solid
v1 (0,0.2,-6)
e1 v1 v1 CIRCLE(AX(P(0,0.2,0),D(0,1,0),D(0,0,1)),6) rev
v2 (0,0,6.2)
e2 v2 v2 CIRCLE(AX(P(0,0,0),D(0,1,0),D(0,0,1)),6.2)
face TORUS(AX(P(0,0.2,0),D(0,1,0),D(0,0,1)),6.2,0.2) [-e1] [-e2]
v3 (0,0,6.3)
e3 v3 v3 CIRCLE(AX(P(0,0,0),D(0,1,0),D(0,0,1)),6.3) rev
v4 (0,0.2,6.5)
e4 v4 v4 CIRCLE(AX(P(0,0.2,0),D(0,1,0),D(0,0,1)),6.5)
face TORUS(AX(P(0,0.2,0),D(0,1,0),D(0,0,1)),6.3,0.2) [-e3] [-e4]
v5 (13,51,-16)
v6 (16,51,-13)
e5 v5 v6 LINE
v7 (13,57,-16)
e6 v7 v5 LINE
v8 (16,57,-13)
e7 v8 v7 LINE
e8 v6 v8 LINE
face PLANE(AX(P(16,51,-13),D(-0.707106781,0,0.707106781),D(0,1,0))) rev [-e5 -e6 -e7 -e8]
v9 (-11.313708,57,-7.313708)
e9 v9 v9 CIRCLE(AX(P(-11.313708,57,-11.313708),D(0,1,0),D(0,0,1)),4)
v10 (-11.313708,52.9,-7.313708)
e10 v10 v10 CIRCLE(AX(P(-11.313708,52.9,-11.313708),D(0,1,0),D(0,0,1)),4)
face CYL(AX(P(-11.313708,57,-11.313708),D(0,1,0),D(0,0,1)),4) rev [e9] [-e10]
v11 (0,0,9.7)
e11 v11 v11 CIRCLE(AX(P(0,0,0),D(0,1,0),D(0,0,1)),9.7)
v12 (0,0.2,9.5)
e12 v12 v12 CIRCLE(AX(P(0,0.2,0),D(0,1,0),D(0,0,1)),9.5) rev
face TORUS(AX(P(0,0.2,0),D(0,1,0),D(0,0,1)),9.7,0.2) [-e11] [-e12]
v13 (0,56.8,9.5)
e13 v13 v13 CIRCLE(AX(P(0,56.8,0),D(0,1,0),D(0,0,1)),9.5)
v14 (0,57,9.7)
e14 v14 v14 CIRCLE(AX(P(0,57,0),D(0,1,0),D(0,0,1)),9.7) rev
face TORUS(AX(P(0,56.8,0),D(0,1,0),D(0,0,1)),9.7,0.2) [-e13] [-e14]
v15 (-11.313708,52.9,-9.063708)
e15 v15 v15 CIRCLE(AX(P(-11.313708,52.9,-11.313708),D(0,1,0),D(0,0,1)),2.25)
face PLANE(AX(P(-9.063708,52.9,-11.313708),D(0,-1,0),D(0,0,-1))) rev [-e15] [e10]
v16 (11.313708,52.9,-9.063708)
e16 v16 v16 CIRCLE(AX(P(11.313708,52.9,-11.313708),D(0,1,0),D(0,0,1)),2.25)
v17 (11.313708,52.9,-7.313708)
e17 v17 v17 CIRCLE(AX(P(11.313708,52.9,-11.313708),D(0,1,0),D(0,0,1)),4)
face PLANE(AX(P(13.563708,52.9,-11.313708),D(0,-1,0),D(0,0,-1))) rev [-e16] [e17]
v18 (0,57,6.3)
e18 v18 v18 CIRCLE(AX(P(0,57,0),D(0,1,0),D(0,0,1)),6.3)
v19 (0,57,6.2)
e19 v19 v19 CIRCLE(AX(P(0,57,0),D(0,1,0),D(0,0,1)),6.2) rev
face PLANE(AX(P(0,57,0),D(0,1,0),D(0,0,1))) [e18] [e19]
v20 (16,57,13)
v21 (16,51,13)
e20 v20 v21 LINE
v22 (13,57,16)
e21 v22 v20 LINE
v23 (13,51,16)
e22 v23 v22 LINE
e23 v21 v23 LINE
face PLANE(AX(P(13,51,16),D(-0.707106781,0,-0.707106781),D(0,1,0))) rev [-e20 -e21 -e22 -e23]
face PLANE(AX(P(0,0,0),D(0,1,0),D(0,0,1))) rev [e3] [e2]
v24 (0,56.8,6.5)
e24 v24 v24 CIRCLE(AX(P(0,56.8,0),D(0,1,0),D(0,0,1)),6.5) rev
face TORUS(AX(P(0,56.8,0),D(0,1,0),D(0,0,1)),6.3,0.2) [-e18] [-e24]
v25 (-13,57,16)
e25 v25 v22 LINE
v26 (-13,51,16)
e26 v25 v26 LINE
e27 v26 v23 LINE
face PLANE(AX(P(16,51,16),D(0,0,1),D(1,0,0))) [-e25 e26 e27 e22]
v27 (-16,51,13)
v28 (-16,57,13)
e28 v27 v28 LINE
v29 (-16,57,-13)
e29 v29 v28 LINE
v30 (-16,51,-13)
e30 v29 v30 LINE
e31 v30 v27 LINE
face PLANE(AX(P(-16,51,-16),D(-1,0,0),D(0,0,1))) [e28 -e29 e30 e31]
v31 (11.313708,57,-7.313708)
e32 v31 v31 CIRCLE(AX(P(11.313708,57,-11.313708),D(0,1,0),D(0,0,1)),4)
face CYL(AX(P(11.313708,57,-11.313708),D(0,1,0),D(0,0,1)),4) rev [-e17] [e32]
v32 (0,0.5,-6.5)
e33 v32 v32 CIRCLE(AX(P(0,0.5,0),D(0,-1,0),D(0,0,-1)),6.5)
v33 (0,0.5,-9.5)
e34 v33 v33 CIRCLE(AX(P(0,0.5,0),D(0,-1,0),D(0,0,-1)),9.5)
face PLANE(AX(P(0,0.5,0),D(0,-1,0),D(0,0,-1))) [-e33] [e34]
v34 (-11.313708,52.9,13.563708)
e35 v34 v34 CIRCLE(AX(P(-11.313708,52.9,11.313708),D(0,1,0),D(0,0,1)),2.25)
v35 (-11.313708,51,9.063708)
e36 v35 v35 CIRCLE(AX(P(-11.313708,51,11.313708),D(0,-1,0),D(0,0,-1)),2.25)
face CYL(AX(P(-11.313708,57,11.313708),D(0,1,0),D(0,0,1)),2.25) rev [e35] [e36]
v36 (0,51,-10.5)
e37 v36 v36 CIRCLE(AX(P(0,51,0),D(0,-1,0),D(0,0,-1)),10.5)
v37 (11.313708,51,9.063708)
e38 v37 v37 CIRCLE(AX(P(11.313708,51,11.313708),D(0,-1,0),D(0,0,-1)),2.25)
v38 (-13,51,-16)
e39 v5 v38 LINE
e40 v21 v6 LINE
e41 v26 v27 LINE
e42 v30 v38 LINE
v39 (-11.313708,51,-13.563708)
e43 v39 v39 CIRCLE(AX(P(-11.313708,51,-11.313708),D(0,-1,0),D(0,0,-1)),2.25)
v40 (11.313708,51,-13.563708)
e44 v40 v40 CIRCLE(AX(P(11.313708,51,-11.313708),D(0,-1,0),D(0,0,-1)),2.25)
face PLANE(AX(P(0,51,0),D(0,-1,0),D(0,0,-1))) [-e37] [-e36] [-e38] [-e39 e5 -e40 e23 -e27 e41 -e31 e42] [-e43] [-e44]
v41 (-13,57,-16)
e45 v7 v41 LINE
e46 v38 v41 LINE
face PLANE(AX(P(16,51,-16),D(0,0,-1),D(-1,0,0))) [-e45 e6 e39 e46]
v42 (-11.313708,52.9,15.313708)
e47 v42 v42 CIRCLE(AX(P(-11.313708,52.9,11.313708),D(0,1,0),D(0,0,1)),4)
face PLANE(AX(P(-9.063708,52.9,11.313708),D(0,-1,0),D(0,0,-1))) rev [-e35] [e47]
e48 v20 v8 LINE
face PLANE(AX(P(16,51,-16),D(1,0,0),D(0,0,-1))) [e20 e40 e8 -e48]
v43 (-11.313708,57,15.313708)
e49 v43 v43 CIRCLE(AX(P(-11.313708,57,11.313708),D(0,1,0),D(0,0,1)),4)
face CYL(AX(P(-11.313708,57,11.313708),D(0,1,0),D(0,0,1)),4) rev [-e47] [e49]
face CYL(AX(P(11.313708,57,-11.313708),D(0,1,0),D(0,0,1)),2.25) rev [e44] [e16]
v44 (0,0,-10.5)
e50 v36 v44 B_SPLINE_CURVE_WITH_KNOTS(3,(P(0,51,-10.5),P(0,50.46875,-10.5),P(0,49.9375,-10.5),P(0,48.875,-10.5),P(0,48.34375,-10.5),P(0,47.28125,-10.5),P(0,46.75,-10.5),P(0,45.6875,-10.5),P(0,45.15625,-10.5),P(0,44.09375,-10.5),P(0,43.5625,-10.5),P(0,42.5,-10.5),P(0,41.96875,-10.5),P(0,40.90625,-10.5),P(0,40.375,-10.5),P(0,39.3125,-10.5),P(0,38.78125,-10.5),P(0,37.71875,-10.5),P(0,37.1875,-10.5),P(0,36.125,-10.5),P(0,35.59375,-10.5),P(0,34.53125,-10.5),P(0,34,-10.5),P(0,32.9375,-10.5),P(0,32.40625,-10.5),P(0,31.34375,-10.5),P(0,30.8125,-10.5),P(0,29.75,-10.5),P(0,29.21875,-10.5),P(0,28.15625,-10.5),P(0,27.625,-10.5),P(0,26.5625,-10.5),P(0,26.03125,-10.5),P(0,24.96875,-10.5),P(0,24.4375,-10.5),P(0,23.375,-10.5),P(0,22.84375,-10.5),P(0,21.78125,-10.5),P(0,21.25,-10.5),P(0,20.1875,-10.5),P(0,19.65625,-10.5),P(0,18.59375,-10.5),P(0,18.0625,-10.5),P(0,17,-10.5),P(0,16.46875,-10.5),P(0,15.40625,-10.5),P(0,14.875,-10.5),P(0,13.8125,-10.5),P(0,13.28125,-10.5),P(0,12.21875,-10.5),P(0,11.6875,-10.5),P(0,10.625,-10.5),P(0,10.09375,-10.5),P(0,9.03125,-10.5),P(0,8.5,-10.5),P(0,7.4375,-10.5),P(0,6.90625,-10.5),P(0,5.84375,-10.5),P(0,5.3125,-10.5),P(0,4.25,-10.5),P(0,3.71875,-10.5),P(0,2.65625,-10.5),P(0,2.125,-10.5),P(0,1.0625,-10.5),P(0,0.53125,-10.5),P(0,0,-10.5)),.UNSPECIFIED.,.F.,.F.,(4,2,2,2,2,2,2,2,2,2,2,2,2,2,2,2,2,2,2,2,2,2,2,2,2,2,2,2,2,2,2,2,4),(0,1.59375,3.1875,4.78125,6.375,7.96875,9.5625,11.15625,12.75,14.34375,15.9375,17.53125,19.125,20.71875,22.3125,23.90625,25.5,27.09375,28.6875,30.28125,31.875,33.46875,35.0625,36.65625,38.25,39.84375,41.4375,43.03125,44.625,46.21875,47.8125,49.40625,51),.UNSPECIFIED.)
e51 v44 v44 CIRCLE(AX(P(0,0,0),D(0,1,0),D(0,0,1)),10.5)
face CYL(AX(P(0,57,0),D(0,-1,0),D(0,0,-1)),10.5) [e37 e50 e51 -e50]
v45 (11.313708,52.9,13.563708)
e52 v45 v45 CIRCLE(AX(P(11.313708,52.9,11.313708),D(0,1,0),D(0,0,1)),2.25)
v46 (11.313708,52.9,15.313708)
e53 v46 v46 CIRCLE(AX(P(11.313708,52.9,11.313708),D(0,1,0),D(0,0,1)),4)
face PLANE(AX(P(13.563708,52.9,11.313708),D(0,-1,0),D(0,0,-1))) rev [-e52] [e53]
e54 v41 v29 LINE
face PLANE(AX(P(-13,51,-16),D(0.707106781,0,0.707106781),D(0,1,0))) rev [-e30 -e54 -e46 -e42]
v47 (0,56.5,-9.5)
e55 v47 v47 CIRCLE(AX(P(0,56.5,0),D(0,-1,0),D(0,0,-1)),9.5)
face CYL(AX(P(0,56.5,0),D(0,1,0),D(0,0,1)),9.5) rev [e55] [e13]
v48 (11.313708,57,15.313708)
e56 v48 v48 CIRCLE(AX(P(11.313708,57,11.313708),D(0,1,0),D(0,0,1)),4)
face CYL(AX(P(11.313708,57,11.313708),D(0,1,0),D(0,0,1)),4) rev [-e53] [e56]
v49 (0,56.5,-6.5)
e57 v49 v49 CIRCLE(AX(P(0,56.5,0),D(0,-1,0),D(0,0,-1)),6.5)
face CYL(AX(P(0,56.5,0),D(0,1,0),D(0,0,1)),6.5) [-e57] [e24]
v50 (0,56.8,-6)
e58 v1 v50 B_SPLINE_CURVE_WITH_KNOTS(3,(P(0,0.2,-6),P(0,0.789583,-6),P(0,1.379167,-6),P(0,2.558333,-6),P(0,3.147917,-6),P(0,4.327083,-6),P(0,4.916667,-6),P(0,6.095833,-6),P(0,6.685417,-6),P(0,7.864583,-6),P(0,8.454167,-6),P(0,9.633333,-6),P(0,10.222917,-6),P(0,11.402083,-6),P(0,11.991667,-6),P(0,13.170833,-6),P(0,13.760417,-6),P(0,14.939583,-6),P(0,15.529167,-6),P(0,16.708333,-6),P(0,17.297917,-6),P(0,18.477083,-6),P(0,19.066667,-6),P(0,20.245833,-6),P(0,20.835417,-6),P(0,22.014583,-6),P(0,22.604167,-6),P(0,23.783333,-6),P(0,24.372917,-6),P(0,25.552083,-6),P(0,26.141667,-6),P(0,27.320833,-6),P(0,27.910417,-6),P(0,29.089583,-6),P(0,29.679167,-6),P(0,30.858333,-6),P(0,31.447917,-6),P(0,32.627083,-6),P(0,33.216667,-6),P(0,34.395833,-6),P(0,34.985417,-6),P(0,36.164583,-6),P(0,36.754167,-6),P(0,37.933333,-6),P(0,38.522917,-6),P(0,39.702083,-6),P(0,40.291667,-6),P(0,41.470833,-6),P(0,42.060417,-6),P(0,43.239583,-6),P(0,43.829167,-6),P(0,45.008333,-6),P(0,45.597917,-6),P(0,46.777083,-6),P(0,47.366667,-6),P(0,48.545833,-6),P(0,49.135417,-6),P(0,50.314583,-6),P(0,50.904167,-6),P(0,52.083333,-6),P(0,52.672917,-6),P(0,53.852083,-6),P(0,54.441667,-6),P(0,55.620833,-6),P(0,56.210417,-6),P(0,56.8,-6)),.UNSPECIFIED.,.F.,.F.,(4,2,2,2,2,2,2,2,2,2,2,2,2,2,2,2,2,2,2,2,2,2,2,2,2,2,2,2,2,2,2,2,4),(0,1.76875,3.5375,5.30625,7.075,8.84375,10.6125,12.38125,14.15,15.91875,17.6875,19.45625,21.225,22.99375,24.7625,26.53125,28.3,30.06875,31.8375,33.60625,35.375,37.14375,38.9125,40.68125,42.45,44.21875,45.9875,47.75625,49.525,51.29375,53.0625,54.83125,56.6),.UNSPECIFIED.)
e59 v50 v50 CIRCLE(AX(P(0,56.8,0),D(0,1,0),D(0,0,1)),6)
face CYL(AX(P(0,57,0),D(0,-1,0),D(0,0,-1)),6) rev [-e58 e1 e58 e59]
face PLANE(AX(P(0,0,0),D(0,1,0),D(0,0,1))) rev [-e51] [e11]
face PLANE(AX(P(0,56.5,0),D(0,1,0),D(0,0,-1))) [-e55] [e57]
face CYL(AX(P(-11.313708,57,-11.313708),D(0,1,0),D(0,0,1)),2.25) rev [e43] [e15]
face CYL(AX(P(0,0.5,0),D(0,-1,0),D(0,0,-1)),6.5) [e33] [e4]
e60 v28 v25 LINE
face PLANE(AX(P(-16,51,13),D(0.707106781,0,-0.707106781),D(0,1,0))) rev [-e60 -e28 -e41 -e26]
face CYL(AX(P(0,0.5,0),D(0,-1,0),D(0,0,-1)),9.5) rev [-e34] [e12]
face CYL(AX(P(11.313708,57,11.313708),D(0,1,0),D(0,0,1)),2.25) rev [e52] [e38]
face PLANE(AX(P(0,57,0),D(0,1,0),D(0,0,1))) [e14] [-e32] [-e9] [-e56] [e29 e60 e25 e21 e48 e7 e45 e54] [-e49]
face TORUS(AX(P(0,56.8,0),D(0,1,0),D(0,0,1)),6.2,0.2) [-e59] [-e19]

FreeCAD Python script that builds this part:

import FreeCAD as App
import Part
import Sketcher
from FreeCAD import Vector


def edges_at(feature, points):
    """Names of the edges that pass closest to the given points."""
    edges = feature.Shape.Edges
    near = lambda p: min(range(len(edges)), key=lambda i: edges[i].distToShape(Part.Vertex(*p))[0])
    return sorted({f"Edge{near(p) + 1}" for p in points})

doc = App.newDocument("Part")
body = doc.addObject("PartDesign::Body", "Body")

sketch1 = body.newObject("Sketcher::SketchObject", "Sketch")
sketch1.AttachmentSupport = (doc.getObject("XZ_Plane"), [""])
sketch1.MapMode = "FlatFace"
sketch1.addGeometry([
    Part.Circle(Vector(0, 0, 0), Vector(0, 0, 1), 10),
    Part.Circle(Vector(0, 0, 0), Vector(0, 0, 1), 6),
], False)
sketch1.addConstraint([
    Sketcher.Constraint("Coincident", 0, 3, -1, 1),
    Sketcher.Constraint("Coincident", 1, 3, -1, 1),
    Sketcher.Constraint("Diameter", 0, 21.0),
    Sketcher.Constraint("Diameter", 1, 12.0),
])
pad1 = body.newObject("PartDesign::Pad", "Pad")
pad1.Profile = sketch1
pad1.Length = 57
pad1.Reversed = True

sketch2 = body.newObject("Sketcher::SketchObject", "Sketch001")
sketch2.AttachmentSupport = (doc.getObject("XZ_Plane"), [""])
sketch2.MapMode = "FlatFace"
sketch2.AttachmentOffset = App.Placement(Vector(0, 0, -51), App.Rotation())
sketch2.addGeometry([
    Part.LineSegment(Vector(-16, -16, 0), Vector(-16, 16, 0)),
    Part.LineSegment(Vector(-16, 16, 0), Vector(16, 16, 0)),
    Part.LineSegment(Vector(16, 16, 0), Vector(16, -16, 0)),
    Part.LineSegment(Vector(16, -16, 0), Vector(-16, -16, 0)),
    Part.Circle(Vector(0, 0, 0), Vector(0, 0, 1), 6),
], False)
sketch2.addConstraint([
    Sketcher.Constraint("Coincident", 0, 2, 1, 1),
    Sketcher.Constraint("Coincident", 1, 2, 2, 1),
    Sketcher.Constraint("Coincident", 2, 2, 3, 1),
    Sketcher.Constraint("Coincident", 3, 2, 0, 1),
    Sketcher.Constraint("Vertical", 0),
    Sketcher.Constraint("Horizontal", 1),
    Sketcher.Constraint("Vertical", 2),
    Sketcher.Constraint("Horizontal", 3),
    Sketcher.Constraint("Coincident", 4, 3, -1, 1),
    Sketcher.Constraint("Symmetric", 0, 2, 2, 2, -1, 1),
    Sketcher.Constraint("Equal", 3, 0),
    Sketcher.Constraint("Diameter", 4, 12.0),
    Sketcher.Constraint("DistanceX", 1, 1, 1, 2, 32.0),
])
pad2 = body.newObject("PartDesign::Pad", "Pad001")
pad2.Profile = sketch2
pad2.Length = 6
pad2.Reversed = True

sketch3 = body.newObject("Sketcher::SketchObject", "Sketch002")
sketch3.AttachmentSupport = (doc.getObject("XZ_Plane"), [""])
sketch3.MapMode = "FlatFace"
sketch3.AttachmentOffset = App.Placement(Vector(0, 0, -57), App.Rotation())
sketch3.addGeometry([
    Part.Circle(Vector(-11.3, -11.3, 0), Vector(0, 0, 1), 2.2),
    Part.Circle(Vector(11.3, -11.3, 0), Vector(0, 0, 1), 2.2),
    Part.Circle(Vector(11.3, 11.3, 0), Vector(0, 0, 1), 2.2),
    Part.Circle(Vector(-11.3, 11.3, 0), Vector(0, 0, 1), 2.2),
], False)
sketch3.addConstraint([
    Sketcher.Constraint("Equal", 0, 1),
    Sketcher.Constraint("Equal", 1, 2),
    Sketcher.Constraint("Equal", 2, 3),
    Sketcher.Constraint("Symmetric", 0, 3, 2, 3, -1, 1),
    Sketcher.Constraint("Symmetric", 1, 3, 3, 3, -1, 1),
    Sketcher.Constraint("Symmetric", 0, 3, 1, 3, -2),
    Sketcher.Constraint("Diameter", 0, 4.5),
    Sketcher.Constraint("DistanceX", 0, 3, -1, 1, 11.313708),
    Sketcher.Constraint("DistanceY", 0, 3, -1, 1, 11.313708),
])
doc.recompute()
hole = body.newObject("PartDesign::Hole", "Hole")
hole.Profile = sketch3
hole.ThreadType = "None"
hole.Diameter = 4.5
hole.DepthType = "ThroughAll"
hole.HoleCutType = "Counterbore"
hole.HoleCutDiameter = 8
hole.HoleCutDepth = 4.1
hole.Reversed = True
doc.recompute()

chamfer = body.newObject("PartDesign::Chamfer", "Chamfer")
chamfer.Base = (hole, edges_at(hole, [
    (-16, 54, 16),
    (-16, 54, -16),
    (16, 54, -16),
    (16, 54, 16),
]))
chamfer.Size = 3

sketch4 = body.newObject("Sketcher::SketchObject", "Sketch003")
sketch4.AttachmentSupport = (doc.getObject("XZ_Plane"), [""])
sketch4.MapMode = "FlatFace"
sketch4.addGeometry([
    Part.Circle(Vector(0, 0, 0), Vector(0, 0, 1), 10),
    Part.Circle(Vector(0, 0, 0), Vector(0, 0, 1), 6),
], False)
sketch4.addConstraint([
    Sketcher.Constraint("Coincident", 0, 3, -1, 1),
    Sketcher.Constraint("Coincident", 1, 3, -1, 1),
    Sketcher.Constraint("Diameter", 0, 19.0),
    Sketcher.Constraint("Diameter", 1, 13.0),
])
pocket1 = body.newObject("PartDesign::Pocket", "Pocket")
pocket1.Profile = sketch4
pocket1.Length = 0.5
doc.recompute()

datumplane = body.newObject("PartDesign::Plane", "DatumPlane")
datumplane.AttachmentSupport = (doc.getObject("XZ_Plane"), [""])
datumplane.MapMode = "FlatFace"
datumplane.AttachmentOffset = App.Placement(Vector(0, 0, -28.5), App.Rotation())
mirrored = body.newObject("PartDesign::Mirrored", "Mirrored")
mirrored.Originals = [pocket1]
mirrored.MirrorPlane = (datumplane, [""])
body.Tip = mirrored
doc.recompute()

fillet = body.newObject("PartDesign::Fillet", "Fillet")
fillet.Base = (mirrored, edges_at(mirrored, [
    (0, 0, 6),
    (0, 57, 6),
    (0, 0, 9.5),
    (0, 0, 6.5),
    (0, 57, 6.5),
    (0, 57, 9.5),
]))
fillet.Radius = 0.2

doc.recompute()
